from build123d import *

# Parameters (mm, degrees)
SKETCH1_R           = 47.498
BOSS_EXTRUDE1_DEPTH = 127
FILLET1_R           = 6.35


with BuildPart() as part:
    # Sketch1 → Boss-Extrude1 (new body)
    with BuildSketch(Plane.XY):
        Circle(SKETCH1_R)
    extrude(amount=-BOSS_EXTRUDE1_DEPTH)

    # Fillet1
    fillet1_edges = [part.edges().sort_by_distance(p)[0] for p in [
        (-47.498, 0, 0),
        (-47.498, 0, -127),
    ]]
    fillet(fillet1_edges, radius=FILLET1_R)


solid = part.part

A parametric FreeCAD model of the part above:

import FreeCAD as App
import Part
import Sketcher

V = App.Vector
Q = App.Units.Quantity


def edges_at(feature, points):
    """Names of the edges that pass closest to the given points."""
    edges = feature.Shape.Edges
    near = lambda p: min(range(len(edges)), key=lambda i: edges[i].distToShape(Part.Vertex(*p))[0])
    return sorted({f"Edge{near(p) + 1}" for p in points})

doc = App.newDocument("Part")
body = doc.addObject("PartDesign::Body", "Body")

# Sketch on XY plane
sketch1 = doc.addObject("Sketcher::SketchObject", "Sketch")
body.addObject(sketch1)
sketch1.AttachmentSupport = (doc.XY_Plane, [""])
sketch1.MapMode = "FlatFace"
sketch1.addGeometry(Part.Circle(V(0, 0, 0), V(0, 0, 1), 47.498), False)
sketch1.addConstraint([
    Sketcher.Constraint("Coincident", 0, 3, -1, 1),
    Sketcher.Constraint("Diameter", 0, Q("3.74 in")),
])
pad1 = doc.addObject("PartDesign::Pad", "Pad")
body.addObject(pad1)
pad1.Profile = sketch1
pad1.Length = Q("5 in")
pad1.Reversed = True
doc.recompute()

fillet = doc.addObject("PartDesign::Fillet", "Fillet")
body.addObject(fillet)
fillet.Base = (pad1, edges_at(pad1, [(-47.498, 0, 0), (-47.498, 0, -127)]))
fillet.Radius = Q("0.25 in")

doc.recompute()
